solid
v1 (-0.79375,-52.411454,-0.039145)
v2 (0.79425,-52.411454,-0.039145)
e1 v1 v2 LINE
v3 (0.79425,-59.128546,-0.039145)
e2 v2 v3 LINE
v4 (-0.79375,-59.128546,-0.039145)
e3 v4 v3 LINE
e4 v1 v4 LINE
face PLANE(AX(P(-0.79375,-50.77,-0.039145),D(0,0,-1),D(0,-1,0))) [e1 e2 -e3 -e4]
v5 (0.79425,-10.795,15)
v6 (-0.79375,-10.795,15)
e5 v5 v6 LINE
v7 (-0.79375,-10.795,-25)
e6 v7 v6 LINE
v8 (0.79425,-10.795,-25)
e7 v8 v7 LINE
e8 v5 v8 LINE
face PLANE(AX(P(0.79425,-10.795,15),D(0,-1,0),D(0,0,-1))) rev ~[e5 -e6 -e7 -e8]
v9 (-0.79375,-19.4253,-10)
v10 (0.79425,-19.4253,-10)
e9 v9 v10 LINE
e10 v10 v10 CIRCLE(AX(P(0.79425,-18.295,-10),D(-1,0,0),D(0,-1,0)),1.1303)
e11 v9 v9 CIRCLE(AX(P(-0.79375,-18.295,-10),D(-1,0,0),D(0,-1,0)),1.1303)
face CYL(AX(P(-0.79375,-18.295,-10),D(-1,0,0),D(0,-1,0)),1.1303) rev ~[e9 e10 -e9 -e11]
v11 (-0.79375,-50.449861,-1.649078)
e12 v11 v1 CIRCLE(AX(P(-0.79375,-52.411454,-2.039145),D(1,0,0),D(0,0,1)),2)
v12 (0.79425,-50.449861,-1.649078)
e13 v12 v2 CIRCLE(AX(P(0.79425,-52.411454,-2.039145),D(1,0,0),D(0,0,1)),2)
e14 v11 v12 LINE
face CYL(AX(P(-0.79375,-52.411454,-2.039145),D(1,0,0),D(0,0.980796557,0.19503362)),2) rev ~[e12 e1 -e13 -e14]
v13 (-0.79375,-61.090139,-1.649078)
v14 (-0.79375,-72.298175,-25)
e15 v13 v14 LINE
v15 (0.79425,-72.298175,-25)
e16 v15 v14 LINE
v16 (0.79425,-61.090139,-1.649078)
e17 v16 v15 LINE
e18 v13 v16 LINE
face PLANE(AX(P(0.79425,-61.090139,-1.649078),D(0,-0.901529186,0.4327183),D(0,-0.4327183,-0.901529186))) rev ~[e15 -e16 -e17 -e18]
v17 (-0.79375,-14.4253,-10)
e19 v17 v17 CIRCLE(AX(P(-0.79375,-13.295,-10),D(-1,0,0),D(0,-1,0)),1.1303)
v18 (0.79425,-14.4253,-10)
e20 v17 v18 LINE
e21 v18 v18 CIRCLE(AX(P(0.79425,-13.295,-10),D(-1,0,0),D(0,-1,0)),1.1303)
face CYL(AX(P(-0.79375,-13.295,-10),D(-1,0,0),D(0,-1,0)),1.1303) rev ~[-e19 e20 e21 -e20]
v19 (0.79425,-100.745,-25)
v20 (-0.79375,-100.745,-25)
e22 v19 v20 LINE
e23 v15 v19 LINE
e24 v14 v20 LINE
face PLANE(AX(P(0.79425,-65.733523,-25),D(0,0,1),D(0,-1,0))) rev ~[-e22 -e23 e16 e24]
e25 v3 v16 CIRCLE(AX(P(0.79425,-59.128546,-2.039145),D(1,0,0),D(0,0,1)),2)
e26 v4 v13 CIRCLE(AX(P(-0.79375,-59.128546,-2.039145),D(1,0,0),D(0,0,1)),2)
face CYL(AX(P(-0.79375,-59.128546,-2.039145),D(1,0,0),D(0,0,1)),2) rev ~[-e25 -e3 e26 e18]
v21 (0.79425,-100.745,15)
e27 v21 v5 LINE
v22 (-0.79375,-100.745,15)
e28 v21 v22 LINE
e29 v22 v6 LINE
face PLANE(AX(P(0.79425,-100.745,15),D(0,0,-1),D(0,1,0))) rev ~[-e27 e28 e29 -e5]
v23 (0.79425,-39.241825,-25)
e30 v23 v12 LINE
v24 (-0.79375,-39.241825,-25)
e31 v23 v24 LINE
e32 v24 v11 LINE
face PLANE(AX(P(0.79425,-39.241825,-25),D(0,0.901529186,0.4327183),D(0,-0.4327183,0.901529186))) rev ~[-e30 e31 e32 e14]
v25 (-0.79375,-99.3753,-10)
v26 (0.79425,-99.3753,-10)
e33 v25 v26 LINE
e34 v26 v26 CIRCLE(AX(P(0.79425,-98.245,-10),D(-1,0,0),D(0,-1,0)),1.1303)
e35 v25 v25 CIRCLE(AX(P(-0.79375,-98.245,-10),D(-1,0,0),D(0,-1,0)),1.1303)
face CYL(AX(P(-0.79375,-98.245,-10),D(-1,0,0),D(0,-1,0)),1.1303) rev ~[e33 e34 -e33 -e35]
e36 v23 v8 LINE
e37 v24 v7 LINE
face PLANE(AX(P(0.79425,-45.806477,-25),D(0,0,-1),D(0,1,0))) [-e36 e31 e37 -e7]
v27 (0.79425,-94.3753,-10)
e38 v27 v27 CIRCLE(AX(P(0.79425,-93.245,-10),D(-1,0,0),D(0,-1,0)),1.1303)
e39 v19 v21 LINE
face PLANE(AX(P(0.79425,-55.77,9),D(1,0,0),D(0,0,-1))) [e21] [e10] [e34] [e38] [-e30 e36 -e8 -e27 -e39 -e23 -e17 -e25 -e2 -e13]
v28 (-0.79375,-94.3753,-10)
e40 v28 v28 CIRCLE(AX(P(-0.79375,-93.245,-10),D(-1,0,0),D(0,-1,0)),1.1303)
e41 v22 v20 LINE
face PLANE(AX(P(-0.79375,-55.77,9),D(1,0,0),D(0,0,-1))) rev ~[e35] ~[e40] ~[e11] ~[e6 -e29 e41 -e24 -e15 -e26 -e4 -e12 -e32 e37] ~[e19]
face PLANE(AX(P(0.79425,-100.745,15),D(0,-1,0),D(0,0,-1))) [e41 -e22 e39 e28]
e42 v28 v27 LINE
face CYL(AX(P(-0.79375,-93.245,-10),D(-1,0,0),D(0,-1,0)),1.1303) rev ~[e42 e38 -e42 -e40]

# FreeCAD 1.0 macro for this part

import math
import FreeCAD as App
import Part
import Sketcher
from FreeCAD import Vector


def edges_at(feature, points):
    """Names of the edges that pass closest to the given points."""
    edges = feature.Shape.Edges
    near = lambda p: min(range(len(edges)), key=lambda i: edges[i].distToShape(Part.Vertex(*p))[0])
    return sorted({f"Edge{near(p) + 1}" for p in points})

doc = App.newDocument("Part")
params = doc.addObject("Spreadsheet::Sheet", "Params")
for row, (alias, value) in enumerate([
    ("sketch1_radius", "2 mm"),
    ("sketch1_width", "35 mm"),
    ("sketch1_width2", "10 mm"),
    ("sketch1_height", "16 mm"),
    ("sketch1_width3", "85.95 mm"),
    ("pad1_length", "1.588 mm"),
    ("fillet_radius", "2 mm"),
    ("fillet2_radius", "2 mm"),
    ("fillet3_radius", "2 mm"),
    ("fillet4_radius", "2 mm"),
    ("sketch2_height", "12 mm"),
    ("sketch2_width", "89.95 mm"),
    ("pad2_length", "1.588 mm"),
    ("pocket1_length", "10 mm"),
], start=1):
    params.set(f"A{row}", alias)
    params.set(f"B{row}", "=" + value)
    params.setAlias(f"B{row}", alias)

body = doc.addObject("PartDesign::Body", "Body")

sketch1 = body.newObject("Sketcher::SketchObject", "Sketch")
sketch1.AttachmentSupport = (doc.getObject("YZ_Plane"), [""])
sketch1.MapMode = "FlatFace"
sketch1.AttachmentOffset = App.Placement(Vector(0, 0, -0.79375), App.Rotation())
sketch1.addGeometry(Part.ArcOfCircle(Part.Circle(Vector(-12.8, 3, 0), Vector(0, 0, 1), 2), math.radians(0), math.radians(90)), False)
sketch1.addGeometry(Part.LineSegment(Vector(-10.8, 3, 0), Vector(-10.8, -13, 0)), False)
sketch1.addGeometry(Part.ArcOfCircle(Part.Circle(Vector(-12.8, -13, 0), Vector(0, 0, 1), 2), math.radians(-90), math.radians(0)), False)
sketch1.addGeometry(Part.LineSegment(Vector(-12.8, -15, 0), Vector(-47.8, -15, 0)), False)
sketch1.addGeometry(Part.LineSegment(Vector(-47.8, -15, 0), Vector(-50.8, 0, 0)), False)
sketch1.addGeometry(Part.LineSegment(Vector(-50.8, 0, 0), Vector(-60.8, 0, 0)), False)
sketch1.addGeometry(Part.LineSegment(Vector(-60.8, 0, 0), Vector(-63.7, -15, 0)), False)
sketch1.addGeometry(Part.LineSegment(Vector(-63.7, -15, 0), Vector(-98.7, -15, 0)), False)
sketch1.addGeometry(Part.ArcOfCircle(Part.Circle(Vector(-98.7, -13, 0), Vector(0, 0, 1), 2), math.radians(-180), math.radians(-90)), False)
sketch1.addGeometry(Part.LineSegment(Vector(-100.7, -13, 0), Vector(-100.7, 3, 0)), False)
sketch1.addGeometry(Part.ArcOfCircle(Part.Circle(Vector(-98.7, 3, 0), Vector(0, 0, 1), 2), math.radians(90), math.radians(180)), False)
sketch1.addGeometry(Part.LineSegment(Vector(-98.7, 5, 0), Vector(-12.8, 5, 0)), False)
sketch1.addGeometry(Part.Circle(Vector(-13.3, -10, 0), Vector(0, 0, 1), 1.1), False)
sketch1.addGeometry(Part.Circle(Vector(-18.3, -10, 0), Vector(0, 0, 1), 1.1), False)
sketch1.addGeometry(Part.Circle(Vector(-93.2, -10, 0), Vector(0, 0, 1), 1.1), False)
sketch1.addGeometry(Part.Circle(Vector(-98.2, -10, 0), Vector(0, 0, 1), 1.1), False)
sketch1.addConstraint(Sketcher.Constraint("Tangent", 0, 1, 1, 1))
sketch1.addConstraint(Sketcher.Constraint("Tangent", 1, 2, 2, 2))
sketch1.addConstraint(Sketcher.Constraint("Tangent", 2, 1, 3, 1))
sketch1.addConstraint(Sketcher.Constraint("Coincident", 3, 2, 4, 1))
sketch1.addConstraint(Sketcher.Constraint("Coincident", 4, 2, 5, 1))
sketch1.addConstraint(Sketcher.Constraint("Coincident", 5, 2, 6, 1))
sketch1.addConstraint(Sketcher.Constraint("Coincident", 6, 2, 7, 1))
sketch1.addConstraint(Sketcher.Constraint("Tangent", 7, 2, 8, 2))
sketch1.addConstraint(Sketcher.Constraint("Tangent", 8, 1, 9, 1))
sketch1.addConstraint(Sketcher.Constraint("Tangent", 9, 2, 10, 2))
sketch1.addConstraint(Sketcher.Constraint("Tangent", 10, 1, 11, 1))
sketch1.addConstraint(Sketcher.Constraint("Tangent", 11, 2, 0, 2))
sketch1.addConstraint(Sketcher.Constraint("Vertical", 1))
sketch1.addConstraint(Sketcher.Constraint("Horizontal", 3))
sketch1.addConstraint(Sketcher.Constraint("Horizontal", 5))
sketch1.addConstraint(Sketcher.Constraint("Horizontal", 7))
sketch1.addConstraint(Sketcher.Constraint("Vertical", 9))
sketch1.addConstraint(Sketcher.Constraint("Horizontal", 11))
sketch1.addConstraint(Sketcher.Constraint("Equal", 0, 2))
sketch1.addConstraint(Sketcher.Constraint("Equal", 2, 8))
sketch1.addConstraint(Sketcher.Constraint("Equal", 8, 10))
sketch1.addConstraint(Sketcher.Constraint("Equal", 12, 13))
sketch1.addConstraint(Sketcher.Constraint("Equal", 13, 14))
sketch1.addConstraint(Sketcher.Constraint("Equal", 14, 15))
sketch1.addConstraint(Sketcher.Constraint("Horizontal", 2, 3, 8, 3))
sketch1.addConstraint(Sketcher.Constraint("Horizontal", 12, 3, 13, 3))
sketch1.addConstraint(Sketcher.Constraint("Horizontal", 13, 3, 14, 3))
sketch1.addConstraint(Sketcher.Constraint("Horizontal", 14, 3, 15, 3))
sketch1.addConstraint(Sketcher.Constraint("Equal", 3, 7))
sketch1.addConstraint(Sketcher.Constraint("Equal", 4, 6))
sketch1.addConstraint(Sketcher.Constraint("Radius", 0, 2.0))
sketch1.addConstraint(Sketcher.Constraint("DistanceX", 3, 2, 3, 1, 35.0))
sketch1.addConstraint(Sketcher.Constraint("DistanceX", 5, 2, 5, 1, 10.0))
sketch1.addConstraint(Sketcher.Constraint("DistanceY", 1, 2, 1, 1, 16.0))
sketch1.addConstraint(Sketcher.Constraint("DistanceY", -1, 1, 0, 3, 3.0))
sketch1.addConstraint(Sketcher.Constraint("DistanceY", 12, 3, -1, 1, 10.0))
sketch1.addConstraint(Sketcher.Constraint("DistanceX", 13, 3, 12, 3, 5.0))
sketch1.addConstraint(Sketcher.Constraint("DistanceX", 15, 3, 14, 3, 5.0))
sketch1.addConstraint(Sketcher.Constraint("Diameter", 12, 2.2606))
sketch1.addConstraint(Sketcher.Constraint("DistanceX", 11, 1, 11, 2, 85.95))
sketch1.addConstraint(Sketcher.Constraint("DistanceX", 12, 3, 2, 3, 0.5))
sketch1.addConstraint(Sketcher.Constraint("DistanceX", 8, 3, 14, 3, 5.5))
sketch1.addConstraint(Sketcher.Constraint("DistanceX", 4, 2, -1, 1, 50.77))
sketch1.addConstraint(Sketcher.Constraint("Distance", 4, 15.25378))
sketch1.setExpression("Constraints[30]", "Params.sketch1_radius")
sketch1.setExpression("Constraints[31]", "Params.sketch1_width")
sketch1.setExpression("Constraints[32]", "Params.sketch1_width2")
sketch1.setExpression("Constraints[33]", "Params.sketch1_height")
sketch1.setExpression("Constraints[39]", "Params.sketch1_width3")
pad1 = body.newObject("PartDesign::Pad", "Pad")
pad1.Profile = sketch1
pad1.setExpression("Length", "Params.pad1_length")
doc.recompute()

fillet = body.newObject("PartDesign::Fillet", "Fillet")
fillet.Base = (pad1, edges_at(pad1, [(0, -47.795, -15)]))
fillet.setExpression("Radius", "Params.fillet_radius")
doc.recompute()

fillet2 = body.newObject("PartDesign::Fillet", "Fillet001")
fillet2.Base = (fillet, edges_at(fillet, [(0, -50.77, -0.039)]))
fillet2.setExpression("Radius", "Params.fillet2_radius")
doc.recompute()

fillet3 = body.newObject("PartDesign::Fillet", "Fillet002")
fillet3.Base = (fillet2, edges_at(fillet2, [(0, -60.77, -0.039)]))
fillet3.setExpression("Radius", "Params.fillet3_radius")
doc.recompute()

fillet4 = body.newObject("PartDesign::Fillet", "Fillet003")
fillet4.Base = (fillet3, edges_at(fillet3, [(0, -63.745, -15)]))
fillet4.setExpression("Radius", "Params.fillet4_radius")

sketch2 = body.newObject("Sketcher::SketchObject", "Sketch001")
sketch2.AttachmentSupport = (doc.getObject("YZ_Plane"), [""])
sketch2.MapMode = "FlatFace"
sketch2.AttachmentOffset = App.Placement(Vector(0, 0, 0.79425), App.Rotation())
sketch2.addGeometry(Part.LineSegment(Vector(-11, 15, 0), Vector(-101, 15, 0)), False)
sketch2.addGeometry(Part.LineSegment(Vector(-101, 15, 0), Vector(-101, 3, 0)), False)
sketch2.addGeometry(Part.LineSegment(Vector(-101, 3, 0), Vector(-11, 3, 0)), False)
sketch2.addGeometry(Part.LineSegment(Vector(-11, 3, 0), Vector(-11, 15, 0)), False)
sketch2.addGeometry(Part.LineSegment(Vector(-48, -13, 0), Vector(-46, -25, 0)), False)
sketch2.addGeometry(Part.LineSegment(Vector(-46, -25, 0), Vector(-11, -25, 0)), False)
sketch2.addGeometry(Part.LineSegment(Vector(-11, -25, 0), Vector(-11, -13, 0)), False)
sketch2.addGeometry(Part.LineSegment(Vector(-11, -13, 0), Vector(-48, -13, 0)), False)
sketch2.addGeometry(Part.LineSegment(Vector(-66, -25, 0), Vector(-63, -13, 0)), False)
sketch2.addGeometry(Part.LineSegment(Vector(-63, -13, 0), Vector(-101, -13, 0)), False)
sketch2.addGeometry(Part.LineSegment(Vector(-101, -13, 0), Vector(-101, -25, 0)), False)
sketch2.addGeometry(Part.LineSegment(Vector(-101, -25, 0), Vector(-66, -25, 0)), False)
sketch2.addConstraint(Sketcher.Constraint("Coincident", 0, 2, 1, 1))
sketch2.addConstraint(Sketcher.Constraint("Coincident", 1, 2, 2, 1))
sketch2.addConstraint(Sketcher.Constraint("Coincident", 2, 2, 3, 1))
sketch2.addConstraint(Sketcher.Constraint("Coincident", 3, 2, 0, 1))
sketch2.addConstraint(Sketcher.Constraint("Coincident", 4, 2, 5, 1))
sketch2.addConstraint(Sketcher.Constraint("Coincident", 5, 2, 6, 1))
sketch2.addConstraint(Sketcher.Constraint("Coincident", 6, 2, 7, 1))
sketch2.addConstraint(Sketcher.Constraint("Coincident", 7, 2, 4, 1))
sketch2.addConstraint(Sketcher.Constraint("Coincident", 8, 2, 9, 1))
sketch2.addConstraint(Sketcher.Constraint("Coincident", 9, 2, 10, 1))
sketch2.addConstraint(Sketcher.Constraint("Coincident", 10, 2, 11, 1))
sketch2.addConstraint(Sketcher.Constraint("Coincident", 11, 2, 8, 1))
sketch2.addConstraint(Sketcher.Constraint("Horizontal", 0))
sketch2.addConstraint(Sketcher.Constraint("Vertical", 1))
sketch2.addConstraint(Sketcher.Constraint("Horizontal", 2))
sketch2.addConstraint(Sketcher.Constraint("Vertical", 3))
sketch2.addConstraint(Sketcher.Constraint("Horizontal", 5))
sketch2.addConstraint(Sketcher.Constraint("Vertical", 6))
sketch2.addConstraint(Sketcher.Constraint("Vertical", 10))
sketch2.addConstraint(Sketcher.Constraint("Horizontal", 11))
sketch2.addConstraint(Sketcher.Constraint("Horizontal", 7, 2, 8, 2))
sketch2.addConstraint(Sketcher.Constraint("Horizontal", 6, 2, 9, 2))
sketch2.addConstraint(Sketcher.Constraint("Horizontal", 5, 2, 10, 2))
sketch2.addConstraint(Sketcher.Constraint("Vertical", 3, 2, 5, 2))
sketch2.addConstraint(Sketcher.Constraint("Vertical", 1, 2, 9, 2))
sketch2.addConstraint(Sketcher.Constraint("Equal", 5, 11))
sketch2.addConstraint(Sketcher.Constraint("Equal", 3, 6))
sketch2.addConstraint(Sketcher.Constraint("Equal", 4, 8))
sketch2.addConstraint(Sketcher.Constraint("DistanceY", 1, 2, 1, 1, 12.0))
sketch2.addConstraint(Sketcher.Constraint("DistanceY", -1, 1, 0, 2, 15.0))
sketch2.addConstraint(Sketcher.Constraint("DistanceY", 4, 2, -1, 1, 25.0))
sketch2.addConstraint(Sketcher.Constraint("DistanceX", 0, 2, 0, 1, 89.95))
sketch2.addConstraint(Sketcher.Constraint("DistanceX", 0, 2, -1, 1, 100.745))
sketch2.addConstraint(Sketcher.Constraint("Distance", 4, 11.837249))
sketch2.addConstraint(Sketcher.Constraint("DistanceX", 5, 1, 5, 2, 35.011477))
sketch2.addConstraint(Sketcher.Constraint("DistanceX", 7, 2, -1, 1, 48.115139))
sketch2.setExpression("Constraints[28]", "Params.sketch2_height")
sketch2.setExpression("Constraints[31]", "Params.sketch2_width")
pad2 = body.newObject("PartDesign::Pad", "Pad001")
pad2.Profile = sketch2
pad2.setExpression("Length", "Params.pad2_length")
pad2.Reversed = True

sketch3 = body.newObject("Sketcher::SketchObject", "Sketch002")
sketch3.AttachmentSupport = (doc.getObject("YZ_Plane"), [""])
sketch3.MapMode = "FlatFace"
sketch3.AttachmentOffset = App.Placement(Vector(0, 0, 0.79425), App.Rotation())
sketch3.addGeometry(Part.LineSegment(Vector(-50, -2, 0), Vector(-46, -25, 0)), False)
sketch3.addGeometry(Part.LineSegment(Vector(-46, -25, 0), Vector(-39, -25, 0)), False)
sketch3.addGeometry(Part.LineSegment(Vector(-39, -25, 0), Vector(-50, -2, 0)), False)
sketch3.addGeometry(Part.LineSegment(Vector(-61, -2, 0), Vector(-72, -25, 0)), False)
sketch3.addGeometry(Part.LineSegment(Vector(-72, -25, 0), Vector(-66, -25, 0)), False)
sketch3.addGeometry(Part.LineSegment(Vector(-66, -25, 0), Vector(-61, -2, 0)), False)
sketch3.addConstraint(Sketcher.Constraint("Coincident", 0, 2, 1, 1))
sketch3.addConstraint(Sketcher.Constraint("Coincident", 1, 2, 2, 1))
sketch3.addConstraint(Sketcher.Constraint("Coincident", 2, 2, 0, 1))
sketch3.addConstraint(Sketcher.Constraint("Coincident", 3, 2, 4, 1))
sketch3.addConstraint(Sketcher.Constraint("Coincident", 4, 2, 5, 1))
sketch3.addConstraint(Sketcher.Constraint("Coincident", 5, 2, 3, 1))
sketch3.addConstraint(Sketcher.Constraint("Horizontal", 1))
sketch3.addConstraint(Sketcher.Constraint("Horizontal", 4))
sketch3.addConstraint(Sketcher.Constraint("Horizontal", 1, 2, 3, 2))
sketch3.addConstraint(Sketcher.Constraint("Horizontal", 2, 2, 5, 2))
sketch3.addConstraint(Sketcher.Constraint("Equal", 1, 4))
sketch3.addConstraint(Sketcher.Constraint("Equal", 2, 3))
sketch3.addConstraint(Sketcher.Constraint("DistanceY", 0, 2, -1, 1, 25.0))
sketch3.addConstraint(Sketcher.Constraint("DistanceX", 1, 1, 1, 2, 6.564652))
sketch3.addConstraint(Sketcher.Constraint("Distance", 0, 23.80812))
sketch3.addConstraint(Sketcher.Constraint("Distance", 2, 25.90146))
sketch3.addConstraint(Sketcher.Constraint("DistanceX", 2, 2, -1, 1, 50.449861))
sketch3.addConstraint(Sketcher.Constraint("DistanceX", 5, 2, -1, 1, 61.090139))
pocket1 = body.newObject("PartDesign::Pocket", "Pocket")
pocket1.Profile = sketch3
pocket1.setExpression("Length", "Params.pocket1_length")

doc.recompute()
